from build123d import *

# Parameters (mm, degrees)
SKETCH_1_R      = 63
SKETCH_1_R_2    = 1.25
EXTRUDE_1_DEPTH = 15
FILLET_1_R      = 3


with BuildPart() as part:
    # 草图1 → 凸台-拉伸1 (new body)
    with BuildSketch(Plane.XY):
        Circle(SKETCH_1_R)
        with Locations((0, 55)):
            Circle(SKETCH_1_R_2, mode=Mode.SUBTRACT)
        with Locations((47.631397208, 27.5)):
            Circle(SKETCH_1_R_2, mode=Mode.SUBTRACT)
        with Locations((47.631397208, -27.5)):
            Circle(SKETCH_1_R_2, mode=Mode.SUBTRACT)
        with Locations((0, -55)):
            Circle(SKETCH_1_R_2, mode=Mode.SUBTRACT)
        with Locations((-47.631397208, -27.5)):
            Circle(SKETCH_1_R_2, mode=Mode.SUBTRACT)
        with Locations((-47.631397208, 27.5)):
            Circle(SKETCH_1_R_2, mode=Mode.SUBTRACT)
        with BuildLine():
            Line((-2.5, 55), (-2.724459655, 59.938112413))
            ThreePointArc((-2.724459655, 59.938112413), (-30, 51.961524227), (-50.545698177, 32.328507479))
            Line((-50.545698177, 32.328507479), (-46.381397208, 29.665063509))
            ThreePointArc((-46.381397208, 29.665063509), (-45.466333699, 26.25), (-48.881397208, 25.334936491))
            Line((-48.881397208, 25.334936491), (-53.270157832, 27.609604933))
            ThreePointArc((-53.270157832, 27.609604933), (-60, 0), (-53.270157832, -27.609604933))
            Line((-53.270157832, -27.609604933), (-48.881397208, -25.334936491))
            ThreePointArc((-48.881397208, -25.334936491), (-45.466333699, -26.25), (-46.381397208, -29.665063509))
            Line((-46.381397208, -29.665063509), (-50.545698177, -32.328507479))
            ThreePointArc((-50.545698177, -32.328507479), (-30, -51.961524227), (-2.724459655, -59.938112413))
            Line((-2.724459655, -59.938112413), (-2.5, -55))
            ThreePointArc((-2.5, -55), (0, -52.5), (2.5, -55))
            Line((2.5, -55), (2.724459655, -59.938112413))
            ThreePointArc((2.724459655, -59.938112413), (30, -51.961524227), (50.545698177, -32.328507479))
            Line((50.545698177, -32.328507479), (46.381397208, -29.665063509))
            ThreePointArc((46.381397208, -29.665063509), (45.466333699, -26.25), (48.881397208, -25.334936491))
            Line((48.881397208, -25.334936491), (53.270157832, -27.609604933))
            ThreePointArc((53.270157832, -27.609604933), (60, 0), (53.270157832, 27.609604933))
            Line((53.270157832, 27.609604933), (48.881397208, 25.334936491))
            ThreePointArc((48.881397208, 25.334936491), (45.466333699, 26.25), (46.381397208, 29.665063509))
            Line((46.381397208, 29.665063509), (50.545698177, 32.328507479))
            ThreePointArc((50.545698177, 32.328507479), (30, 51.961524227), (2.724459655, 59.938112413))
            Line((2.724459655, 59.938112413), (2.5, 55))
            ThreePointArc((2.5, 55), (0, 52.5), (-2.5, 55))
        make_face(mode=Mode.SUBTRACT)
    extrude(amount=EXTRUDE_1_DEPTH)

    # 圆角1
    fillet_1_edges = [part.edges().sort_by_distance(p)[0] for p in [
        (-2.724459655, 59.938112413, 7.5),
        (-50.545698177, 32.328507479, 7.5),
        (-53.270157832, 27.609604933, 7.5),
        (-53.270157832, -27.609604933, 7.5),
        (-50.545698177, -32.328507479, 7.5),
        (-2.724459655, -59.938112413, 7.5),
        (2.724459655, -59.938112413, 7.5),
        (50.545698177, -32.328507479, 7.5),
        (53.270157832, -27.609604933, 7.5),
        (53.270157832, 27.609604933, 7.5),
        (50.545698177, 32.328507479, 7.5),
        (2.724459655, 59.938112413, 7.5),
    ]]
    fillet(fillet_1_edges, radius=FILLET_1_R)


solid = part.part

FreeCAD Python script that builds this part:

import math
import FreeCAD as App
import Part
import Sketcher

V = App.Vector


def edges_at(feature, points):
    """Names of the edges that pass closest to the given points."""
    edges = feature.Shape.Edges
    near = lambda p: min(range(len(edges)), key=lambda i: edges[i].distToShape(Part.Vertex(*p))[0])
    return sorted({f"Edge{near(p) + 1}" for p in points})

doc = App.newDocument("Part")
params = doc.addObject("Spreadsheet::Sheet", "Params")
for row, (alias, value) in enumerate([
    ("sketch1_diameter", "126 mm"),
    ("sketch1_radius", "60 mm"),
    ("sketch1_diameter2", "2.5 mm"),
    ("sketch1_radius2", "2.5 mm"),
    ("pad1_length", "15 mm"),
    ("fillet_radius", "3 mm"),
], start=1):
    params.set(f"A{row}", alias)
    params.set(f"B{row}", "=" + value)
    params.setAlias(f"B{row}", alias)

body = doc.addObject("PartDesign::Body", "Body")

sketch1 = body.newObject("Sketcher::SketchObject", "Sketch")
sketch1.AttachmentSupport = (doc.getObject("XY_Plane"), [""])
sketch1.MapMode = "FlatFace"
sketch1.addGeometry([
    Part.Circle(V(0, 0, 0), V(0, 0, 1), 63),
    Part.Circle(V(-47.631397, -27.5, 0), V(0, 0, 1), 1.25),
    Part.Circle(V(0, -55, 0), V(0, 0, 1), 1.25),
    Part.Circle(V(47.631397, -27.5, 0), V(0, 0, 1), 1.25),
    Part.Circle(V(-47.631397, 27.5, 0), V(0, 0, 1), 1.25),
    Part.LineSegment(V(-2.72446, 59.938112, 0), V(-2.5, 55, 0)),
    Part.ArcOfCircle(Part.Circle(V(0, 55, 0), V(0, 0, 1), 2.5), math.radians(180), math.radians(360)),
    Part.LineSegment(V(2.5, 55, 0), V(2.72446, 59.938112, 0)),
    Part.ArcOfCircle(Part.Circle(V(0, 0, 0), V(0, 0, 1), 60), math.radians(32.602562), math.radians(87.397438)),
    Part.LineSegment(V(50.545698, 32.328507, 0), V(46.381397, 29.665064, 0)),
    Part.ArcOfCircle(Part.Circle(V(47.631397, 27.5, 0), V(0, 0, 1), 2.5), math.radians(120), math.radians(300)),
    Part.LineSegment(V(48.881397, 25.334936, 0), V(53.270158, 27.609605, 0)),
    Part.ArcOfCircle(Part.Circle(V(0, 0, 0), V(0, 0, 1), 60), math.radians(-27.397438), math.radians(27.397438)),
    Part.LineSegment(V(53.270158, -27.609605, 0), V(48.881397, -25.334936, 0)),
    Part.ArcOfCircle(Part.Circle(V(47.631397, -27.5, 0), V(0, 0, 1), 2.5), math.radians(60), math.radians(240)),
    Part.LineSegment(V(46.381397, -29.665064, 0), V(50.545698, -32.328507, 0)),
    Part.ArcOfCircle(Part.Circle(V(0, 0, 0), V(0, 0, 1), 60), math.radians(-87.397438), math.radians(-32.602562)),
    Part.LineSegment(V(2.72446, -59.938112, 0), V(2.5, -55, 0)),
    Part.ArcOfCircle(Part.Circle(V(0, -55, 0), V(0, 0, 1), 2.5), math.radians(0), math.radians(180)),
    Part.LineSegment(V(-2.5, -55, 0), V(-2.72446, -59.938112, 0)),
    Part.ArcOfCircle(Part.Circle(V(0, 0, 0), V(0, 0, 1), 60), math.radians(-147.397438), math.radians(-92.602562)),
    Part.LineSegment(V(-50.545698, -32.328507, 0), V(-46.381397, -29.665064, 0)),
    Part.ArcOfCircle(Part.Circle(V(-47.631397, -27.5, 0), V(0, 0, 1), 2.5), math.radians(-60), math.radians(120)),
    Part.LineSegment(V(-48.881397, -25.334936, 0), V(-53.270158, -27.609605, 0)),
    Part.ArcOfCircle(Part.Circle(V(0, 0, 0), V(0, 0, 1), 60), math.radians(152.602562), math.radians(207.397438)),
    Part.LineSegment(V(-53.270158, 27.609605, 0), V(-48.881397, 25.334936, 0)),
    Part.ArcOfCircle(Part.Circle(V(-47.631397, 27.5, 0), V(0, 0, 1), 2.5), math.radians(-120), math.radians(60)),
    Part.LineSegment(V(-46.381397, 29.665064, 0), V(-50.545698, 32.328507, 0)),
    Part.ArcOfCircle(Part.Circle(V(0, 0, 0), V(0, 0, 1), 60), math.radians(92.602562), math.radians(147.397438)),
    Part.Circle(V(47.631397, 27.5, 0), V(0, 0, 1), 1.25),
    Part.Circle(V(0, 55, 0), V(0, 0, 1), 1.25),
], False)
sketch1.addConstraint([
    Sketcher.Constraint("Coincident", 5, 2, 6, 1),
    Sketcher.Constraint("Coincident", 6, 2, 7, 1),
    Sketcher.Constraint("Coincident", 7, 2, 8, 2),
    Sketcher.Constraint("Coincident", 8, 1, 9, 1),
    Sketcher.Constraint("Coincident", 9, 2, 10, 1),
    Sketcher.Constraint("Coincident", 10, 2, 11, 1),
    Sketcher.Constraint("Coincident", 11, 2, 12, 2),
    Sketcher.Constraint("Coincident", 12, 1, 13, 1),
    Sketcher.Constraint("Coincident", 13, 2, 14, 1),
    Sketcher.Constraint("Coincident", 14, 2, 15, 1),
    Sketcher.Constraint("Coincident", 15, 2, 16, 2),
    Sketcher.Constraint("Coincident", 16, 1, 17, 1),
    Sketcher.Constraint("Coincident", 17, 2, 18, 1),
    Sketcher.Constraint("Coincident", 18, 2, 19, 1),
    Sketcher.Constraint("Coincident", 19, 2, 20, 2),
    Sketcher.Constraint("Coincident", 20, 1, 21, 1),
    Sketcher.Constraint("Coincident", 21, 2, 22, 1),
    Sketcher.Constraint("Coincident", 22, 2, 23, 1),
    Sketcher.Constraint("Coincident", 23, 2, 24, 2),
    Sketcher.Constraint("Coincident", 24, 1, 25, 1),
    Sketcher.Constraint("Coincident", 25, 2, 26, 1),
    Sketcher.Constraint("Coincident", 26, 2, 27, 1),
    Sketcher.Constraint("Coincident", 27, 2, 28, 2),
    Sketcher.Constraint("Coincident", 28, 1, 5, 1),
    Sketcher.Constraint("Coincident", 0, 3, -1, 1),
    Sketcher.Constraint("Coincident", 8, 3, -1, 1),
    Sketcher.Constraint("Coincident", 12, 3, -1, 1),
    Sketcher.Constraint("Coincident", 16, 3, -1, 1),
    Sketcher.Constraint("Coincident", 20, 3, -1, 1),
    Sketcher.Constraint("Coincident", 24, 3, -1, 1),
    Sketcher.Constraint("Coincident", 28, 3, -1, 1),
    Sketcher.Constraint("Coincident", 14, 3, 3, 3),
    Sketcher.Constraint("Coincident", 18, 3, 2, 3),
    Sketcher.Constraint("Coincident", 22, 3, 1, 3),
    Sketcher.Constraint("Coincident", 26, 3, 4, 3),
    Sketcher.Constraint("Coincident", 29, 3, 10, 3),
    Sketcher.Constraint("Coincident", 30, 3, 6, 3),
    Sketcher.Constraint("Equal", 1, 2),
    Sketcher.Constraint("Equal", 2, 3),
    Sketcher.Constraint("Equal", 3, 4),
    Sketcher.Constraint("Equal", 6, 10),
    Sketcher.Constraint("Equal", 8, 12),
    Sketcher.Constraint("Equal", 10, 14),
    Sketcher.Constraint("Equal", 12, 16),
    Sketcher.Constraint("Equal", 14, 18),
    Sketcher.Constraint("Equal", 16, 20),
    Sketcher.Constraint("Equal", 18, 22),
    Sketcher.Constraint("Equal", 20, 24),
    Sketcher.Constraint("Equal", 22, 26),
    Sketcher.Constraint("Equal", 24, 28),
    Sketcher.Constraint("Equal", 4, 29),
    Sketcher.Constraint("Equal", 29, 30),
    Sketcher.Constraint("Symmetric", 3, 3, 4, 3, -1, 1),
    Sketcher.Constraint("Symmetric", 2, 3, 6, 3, -1, 1),
    Sketcher.Constraint("Symmetric", 1, 3, 10, 3, -1, 1),
    Sketcher.Constraint("Symmetric", 1, 3, 3, 3, -2),
    Sketcher.Constraint("Symmetric", 5, 2, 6, 2, -2),
    Sketcher.Constraint("Parallel", 5, 17),
    Sketcher.Constraint("Parallel", 7, 19),
    Sketcher.Constraint("Parallel", 9, 21),
    Sketcher.Constraint("Parallel", 11, 23),
    Sketcher.Constraint("Parallel", 13, 25),
    Sketcher.Constraint("Parallel", 15, 27),
    Sketcher.Constraint("Horizontal", 30, 3, 5, 2),
    Sketcher.Constraint("Horizontal", 18, 3, 17, 2),
    Sketcher.Constraint("Horizontal", 17, 2, 18, 2),
    Sketcher.Constraint("Horizontal", 16, 1, 19, 2),
    Sketcher.Constraint("Horizontal", 15, 2, 20, 1),
    Sketcher.Constraint("Horizontal", 14, 2, 21, 2),
    Sketcher.Constraint("Horizontal", 13, 2, 22, 2),
    Sketcher.Constraint("Horizontal", 12, 1, 23, 2),
    Sketcher.Constraint("Horizontal", 10, 2, 25, 2),
    Sketcher.Constraint("Horizontal", 9, 2, 26, 2),
    Sketcher.Constraint("Vertical", 10, 2, 13, 2),
    Sketcher.Constraint("Vertical", 9, 2, 14, 2),
    Sketcher.Constraint("Equal", 7, 9),
    Sketcher.Constraint("Equal", 9, 11),
    Sketcher.Constraint("Diameter", 0, 126.0),
    Sketcher.Constraint("Radius", 8, 60.0),
    Sketcher.Constraint("Diameter", 1, 2.5),
    Sketcher.Constraint("Radius", 6, 2.5),
    Sketcher.Constraint("DistanceY", 2, 3, -1, 1, 55.0),
    Sketcher.Constraint("DistanceY", 1, 3, 4, 3, 55.0),
    Sketcher.Constraint("DistanceX", 9, 2, 10, 2, 2.5),
    Sketcher.Constraint("DistanceX", -1, 1, 8, 1, 50.545698),
    Sketcher.Constraint("DistanceX", -1, 1, 7, 2, 2.72446),
    Sketcher.Constraint("DistanceX", 10, 2, 11, 2, 4.388761),
])
sketch1.setExpression("Constraints[77]", "Params.sketch1_diameter")
sketch1.setExpression("Constraints[78]", "Params.sketch1_radius")
sketch1.setExpression("Constraints[79]", "Params.sketch1_diameter2")
sketch1.setExpression("Constraints[80]", "Params.sketch1_radius2")
pad1 = body.newObject("PartDesign::Pad", "Pad")
pad1.Profile = sketch1
pad1.setExpression("Length", "Params.pad1_length")
doc.recompute()

fillet = body.newObject("PartDesign::Fillet", "Fillet")
fillet.Base = (pad1, edges_at(pad1, [
    (-2.724, 59.938, 7.5),
    (-50.546, 32.329, 7.5),
    (-53.27, 27.61, 7.5),
    (-53.27, -27.61, 7.5),
    (-50.546, -32.329, 7.5),
    (-2.724, -59.938, 7.5),
    (2.724, -59.938, 7.5),
    (50.546, -32.329, 7.5),
    (53.27, -27.61, 7.5),
    (53.27, 27.61, 7.5),
    (50.546, 32.329, 7.5),
    (2.724, 59.938, 7.5),
]))
fillet.setExpression("Radius", "Params.fillet_radius")

doc.recompute()
